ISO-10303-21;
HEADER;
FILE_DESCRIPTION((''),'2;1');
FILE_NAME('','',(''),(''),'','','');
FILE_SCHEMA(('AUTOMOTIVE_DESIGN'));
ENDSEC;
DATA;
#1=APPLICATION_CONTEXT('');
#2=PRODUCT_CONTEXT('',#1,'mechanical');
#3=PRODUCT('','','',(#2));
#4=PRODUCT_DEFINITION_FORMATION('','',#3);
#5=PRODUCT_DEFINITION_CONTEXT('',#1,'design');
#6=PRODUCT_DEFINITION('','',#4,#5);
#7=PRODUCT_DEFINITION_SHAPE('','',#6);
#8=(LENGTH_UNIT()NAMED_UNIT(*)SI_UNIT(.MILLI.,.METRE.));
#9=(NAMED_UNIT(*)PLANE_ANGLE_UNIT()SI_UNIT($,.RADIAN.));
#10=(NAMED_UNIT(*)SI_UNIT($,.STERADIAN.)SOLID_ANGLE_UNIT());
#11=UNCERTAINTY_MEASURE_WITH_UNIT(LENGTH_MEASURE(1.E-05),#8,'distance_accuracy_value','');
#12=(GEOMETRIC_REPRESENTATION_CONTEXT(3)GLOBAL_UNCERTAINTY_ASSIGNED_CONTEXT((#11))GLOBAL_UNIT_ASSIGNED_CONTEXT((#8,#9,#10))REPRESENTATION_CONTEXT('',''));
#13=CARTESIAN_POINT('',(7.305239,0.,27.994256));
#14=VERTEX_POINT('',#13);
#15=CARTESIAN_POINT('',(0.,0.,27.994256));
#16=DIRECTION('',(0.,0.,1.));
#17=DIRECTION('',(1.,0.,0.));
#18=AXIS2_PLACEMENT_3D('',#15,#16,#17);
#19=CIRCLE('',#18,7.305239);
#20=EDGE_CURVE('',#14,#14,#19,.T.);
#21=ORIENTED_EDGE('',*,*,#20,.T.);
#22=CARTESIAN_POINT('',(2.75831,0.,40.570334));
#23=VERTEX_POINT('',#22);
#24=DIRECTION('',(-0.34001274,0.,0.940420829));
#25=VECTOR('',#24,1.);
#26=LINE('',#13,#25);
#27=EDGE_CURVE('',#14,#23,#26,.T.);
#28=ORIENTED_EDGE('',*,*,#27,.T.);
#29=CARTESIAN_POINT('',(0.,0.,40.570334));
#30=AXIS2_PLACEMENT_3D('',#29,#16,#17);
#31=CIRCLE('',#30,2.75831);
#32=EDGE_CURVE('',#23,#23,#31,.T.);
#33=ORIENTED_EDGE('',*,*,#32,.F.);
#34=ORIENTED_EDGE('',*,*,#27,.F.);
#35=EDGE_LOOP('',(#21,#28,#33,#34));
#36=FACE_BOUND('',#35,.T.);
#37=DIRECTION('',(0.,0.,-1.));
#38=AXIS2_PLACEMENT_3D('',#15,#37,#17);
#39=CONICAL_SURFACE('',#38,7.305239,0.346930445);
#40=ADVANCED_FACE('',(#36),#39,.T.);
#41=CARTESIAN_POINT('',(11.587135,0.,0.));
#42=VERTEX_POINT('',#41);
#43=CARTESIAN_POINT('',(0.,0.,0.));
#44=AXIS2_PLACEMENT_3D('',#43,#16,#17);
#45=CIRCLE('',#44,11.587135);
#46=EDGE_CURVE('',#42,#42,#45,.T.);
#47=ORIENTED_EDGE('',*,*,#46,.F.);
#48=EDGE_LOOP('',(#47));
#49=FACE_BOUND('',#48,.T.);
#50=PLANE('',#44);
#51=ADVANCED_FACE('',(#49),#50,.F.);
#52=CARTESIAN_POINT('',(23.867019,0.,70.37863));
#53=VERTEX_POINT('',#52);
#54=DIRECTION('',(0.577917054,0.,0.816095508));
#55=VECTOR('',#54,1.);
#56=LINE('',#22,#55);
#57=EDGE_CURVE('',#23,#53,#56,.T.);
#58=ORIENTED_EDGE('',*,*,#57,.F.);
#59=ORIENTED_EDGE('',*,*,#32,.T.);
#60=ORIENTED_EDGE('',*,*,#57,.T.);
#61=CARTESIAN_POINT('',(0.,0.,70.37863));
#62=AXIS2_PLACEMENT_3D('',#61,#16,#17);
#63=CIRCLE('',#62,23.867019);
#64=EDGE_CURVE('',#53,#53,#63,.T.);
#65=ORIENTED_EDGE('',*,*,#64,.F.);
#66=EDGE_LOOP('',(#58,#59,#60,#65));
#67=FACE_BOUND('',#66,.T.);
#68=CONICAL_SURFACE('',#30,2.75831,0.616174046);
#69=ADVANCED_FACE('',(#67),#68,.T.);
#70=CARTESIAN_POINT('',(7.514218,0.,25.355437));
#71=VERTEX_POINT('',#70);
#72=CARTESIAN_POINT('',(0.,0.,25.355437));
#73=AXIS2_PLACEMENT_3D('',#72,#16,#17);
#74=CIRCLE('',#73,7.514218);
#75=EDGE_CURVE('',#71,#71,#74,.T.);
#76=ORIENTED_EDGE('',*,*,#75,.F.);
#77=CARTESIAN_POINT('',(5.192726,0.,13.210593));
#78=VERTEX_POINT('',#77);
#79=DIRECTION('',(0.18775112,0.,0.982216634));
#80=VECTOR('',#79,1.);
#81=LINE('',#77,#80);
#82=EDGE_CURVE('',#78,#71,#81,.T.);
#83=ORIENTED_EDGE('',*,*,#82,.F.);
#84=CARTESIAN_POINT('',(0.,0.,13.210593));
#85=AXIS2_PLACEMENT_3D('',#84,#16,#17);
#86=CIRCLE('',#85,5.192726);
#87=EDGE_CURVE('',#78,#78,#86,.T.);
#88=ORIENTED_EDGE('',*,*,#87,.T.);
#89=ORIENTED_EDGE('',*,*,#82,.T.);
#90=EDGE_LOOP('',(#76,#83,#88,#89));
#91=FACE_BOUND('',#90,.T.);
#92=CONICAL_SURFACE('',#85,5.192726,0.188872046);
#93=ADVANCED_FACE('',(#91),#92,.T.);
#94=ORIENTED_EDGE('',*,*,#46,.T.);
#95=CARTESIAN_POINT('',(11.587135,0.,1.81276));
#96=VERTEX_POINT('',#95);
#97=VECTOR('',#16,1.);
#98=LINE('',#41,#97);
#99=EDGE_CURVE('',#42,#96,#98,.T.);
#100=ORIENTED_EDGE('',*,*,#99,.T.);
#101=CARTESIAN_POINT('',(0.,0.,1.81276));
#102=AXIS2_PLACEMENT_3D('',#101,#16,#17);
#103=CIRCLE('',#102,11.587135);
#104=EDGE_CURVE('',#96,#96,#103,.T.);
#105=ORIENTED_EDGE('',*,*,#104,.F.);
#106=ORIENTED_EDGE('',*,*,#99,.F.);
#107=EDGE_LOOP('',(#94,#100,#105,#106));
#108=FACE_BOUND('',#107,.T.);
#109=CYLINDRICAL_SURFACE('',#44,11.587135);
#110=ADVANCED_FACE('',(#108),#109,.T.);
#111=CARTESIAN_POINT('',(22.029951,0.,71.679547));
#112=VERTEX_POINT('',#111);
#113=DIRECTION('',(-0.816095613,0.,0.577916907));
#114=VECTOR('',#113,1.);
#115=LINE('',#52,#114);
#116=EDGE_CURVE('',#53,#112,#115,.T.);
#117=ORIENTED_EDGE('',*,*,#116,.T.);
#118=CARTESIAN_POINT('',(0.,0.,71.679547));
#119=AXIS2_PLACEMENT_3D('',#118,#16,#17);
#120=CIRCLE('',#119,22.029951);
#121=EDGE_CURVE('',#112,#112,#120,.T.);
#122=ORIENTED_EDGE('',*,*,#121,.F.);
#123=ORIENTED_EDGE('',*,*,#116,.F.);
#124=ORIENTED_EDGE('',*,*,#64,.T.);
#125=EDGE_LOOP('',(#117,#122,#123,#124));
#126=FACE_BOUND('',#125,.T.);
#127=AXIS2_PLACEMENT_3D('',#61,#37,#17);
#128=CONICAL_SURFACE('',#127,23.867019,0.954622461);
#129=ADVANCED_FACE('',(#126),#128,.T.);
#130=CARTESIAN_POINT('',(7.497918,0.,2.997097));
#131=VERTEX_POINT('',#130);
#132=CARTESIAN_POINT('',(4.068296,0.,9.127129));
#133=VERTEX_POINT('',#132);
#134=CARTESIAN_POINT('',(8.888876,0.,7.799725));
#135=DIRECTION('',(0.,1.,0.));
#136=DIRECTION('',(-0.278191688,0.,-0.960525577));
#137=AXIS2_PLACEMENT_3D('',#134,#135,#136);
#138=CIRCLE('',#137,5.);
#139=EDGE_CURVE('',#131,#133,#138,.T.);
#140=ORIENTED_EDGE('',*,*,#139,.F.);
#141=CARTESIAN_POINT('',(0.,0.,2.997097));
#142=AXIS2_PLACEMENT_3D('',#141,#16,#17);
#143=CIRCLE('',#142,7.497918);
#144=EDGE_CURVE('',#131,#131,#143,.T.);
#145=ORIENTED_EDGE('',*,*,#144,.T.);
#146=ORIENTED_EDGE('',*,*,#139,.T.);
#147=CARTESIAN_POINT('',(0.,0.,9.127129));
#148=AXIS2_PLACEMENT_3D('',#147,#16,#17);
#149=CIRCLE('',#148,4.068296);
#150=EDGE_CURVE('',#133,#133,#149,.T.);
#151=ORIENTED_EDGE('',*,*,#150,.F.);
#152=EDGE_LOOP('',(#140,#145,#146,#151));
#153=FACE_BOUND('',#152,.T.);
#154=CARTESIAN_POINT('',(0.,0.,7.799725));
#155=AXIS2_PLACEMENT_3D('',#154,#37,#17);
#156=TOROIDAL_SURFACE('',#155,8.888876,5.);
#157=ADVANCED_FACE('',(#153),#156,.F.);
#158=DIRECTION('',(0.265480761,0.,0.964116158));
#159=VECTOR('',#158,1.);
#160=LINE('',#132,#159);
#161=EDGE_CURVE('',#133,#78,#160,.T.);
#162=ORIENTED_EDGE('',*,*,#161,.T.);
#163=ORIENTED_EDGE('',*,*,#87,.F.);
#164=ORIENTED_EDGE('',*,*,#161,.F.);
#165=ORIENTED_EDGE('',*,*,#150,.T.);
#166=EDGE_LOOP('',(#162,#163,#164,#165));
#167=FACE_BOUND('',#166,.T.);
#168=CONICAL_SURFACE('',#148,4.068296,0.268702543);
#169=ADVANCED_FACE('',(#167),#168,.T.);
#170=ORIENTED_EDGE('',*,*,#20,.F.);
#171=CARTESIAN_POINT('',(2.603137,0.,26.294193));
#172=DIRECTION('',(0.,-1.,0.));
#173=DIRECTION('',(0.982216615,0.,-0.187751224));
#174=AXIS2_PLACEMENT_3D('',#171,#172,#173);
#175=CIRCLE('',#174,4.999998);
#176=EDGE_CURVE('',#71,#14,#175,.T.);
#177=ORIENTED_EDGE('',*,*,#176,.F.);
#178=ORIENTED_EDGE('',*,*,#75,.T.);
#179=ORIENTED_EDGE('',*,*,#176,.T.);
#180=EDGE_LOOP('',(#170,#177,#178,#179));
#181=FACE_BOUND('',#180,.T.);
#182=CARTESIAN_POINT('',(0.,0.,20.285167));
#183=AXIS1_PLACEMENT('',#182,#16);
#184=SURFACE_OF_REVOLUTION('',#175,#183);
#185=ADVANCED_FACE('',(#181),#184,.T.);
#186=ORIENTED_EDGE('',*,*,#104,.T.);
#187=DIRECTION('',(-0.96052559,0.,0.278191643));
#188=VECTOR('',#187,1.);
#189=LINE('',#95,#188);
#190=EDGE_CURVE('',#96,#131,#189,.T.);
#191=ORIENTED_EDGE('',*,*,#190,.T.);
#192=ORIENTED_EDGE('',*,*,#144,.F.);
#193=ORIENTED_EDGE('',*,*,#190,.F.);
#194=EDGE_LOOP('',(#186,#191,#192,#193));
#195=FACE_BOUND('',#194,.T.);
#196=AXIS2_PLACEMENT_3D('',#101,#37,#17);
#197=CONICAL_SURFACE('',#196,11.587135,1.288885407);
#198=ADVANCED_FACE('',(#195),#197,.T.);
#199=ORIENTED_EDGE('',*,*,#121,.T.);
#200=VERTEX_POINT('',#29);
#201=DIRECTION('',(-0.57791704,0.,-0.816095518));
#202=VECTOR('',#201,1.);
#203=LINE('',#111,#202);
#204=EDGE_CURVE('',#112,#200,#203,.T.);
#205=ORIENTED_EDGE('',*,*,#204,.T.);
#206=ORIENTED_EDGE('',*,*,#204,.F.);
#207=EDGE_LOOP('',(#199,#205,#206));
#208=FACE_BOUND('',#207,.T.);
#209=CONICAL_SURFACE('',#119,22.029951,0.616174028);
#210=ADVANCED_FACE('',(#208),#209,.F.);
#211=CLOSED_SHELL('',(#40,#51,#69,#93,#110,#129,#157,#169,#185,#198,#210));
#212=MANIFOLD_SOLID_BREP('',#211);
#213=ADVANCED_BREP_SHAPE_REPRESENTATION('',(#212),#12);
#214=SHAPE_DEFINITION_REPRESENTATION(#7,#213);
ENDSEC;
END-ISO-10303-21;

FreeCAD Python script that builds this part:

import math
import FreeCAD as App
import Part
import Sketcher
from FreeCAD import Vector

doc = App.newDocument("Part")
body = doc.addObject("PartDesign::Body", "Body")

sketch1 = body.newObject("Sketcher::SketchObject", "Sketch")
sketch1.AttachmentSupport = (doc.getObject("XZ_Plane"), [""])
sketch1.MapMode = "FlatFace"
sketch1.addGeometry([
    Part.LineSegment(Vector(0, 40.570334, 0), Vector(0, 0, 0)),
    Part.LineSegment(Vector(0, 0, 0), Vector(11.587135, 0, 0)),
    Part.LineSegment(Vector(11.587135, 0, 0), Vector(11.587135, 1.81276, 0)),
    Part.LineSegment(Vector(11.587135, 1.81276, 0), Vector(7.497918, 2.997097, 0)),
    Part.ArcOfCircle(Part.Circle(Vector(8.888876, 7.799725, 0), Vector(0, 0, 1), 5), math.radians(164.604471), math.radians(253.847691)),
    Part.LineSegment(Vector(4.068296, 9.127129, 0), Vector(5.192726, 13.210593, 0)),
    Part.LineSegment(Vector(5.192726, 13.210593, 0), Vector(7.514218, 25.355437, 0)),
    Part.ArcOfCircle(Part.Circle(Vector(2.603137, 26.294193, 0), Vector(0, 0, 1), 4.999998), math.radians(-10.821577), math.radians(19.877656)),
    Part.LineSegment(Vector(7.305239, 27.994256, 0), Vector(2.75831, 40.570334, 0)),
    Part.LineSegment(Vector(2.75831, 40.570334, 0), Vector(23.867019, 70.37863, 0)),
    Part.LineSegment(Vector(23.867019, 70.37863, 0), Vector(22.029951, 71.679547, 0)),
    Part.LineSegment(Vector(22.029951, 71.679547, 0), Vector(0, 40.570334, 0)),
], False)
sketch1.addConstraint([
    Sketcher.Constraint("Coincident", 0, 2, 1, 1),
    Sketcher.Constraint("Coincident", 1, 2, 2, 1),
    Sketcher.Constraint("Coincident", 2, 2, 3, 1),
    Sketcher.Constraint("Tangent", 3, 2, 4, 2),
    Sketcher.Constraint("Tangent", 4, 1, 5, 1),
    Sketcher.Constraint("Coincident", 5, 2, 6, 1),
    Sketcher.Constraint("Tangent", 6, 2, 7, 1),
    Sketcher.Constraint("Tangent", 7, 2, 8, 1),
    Sketcher.Constraint("Coincident", 8, 2, 9, 1),
    Sketcher.Constraint("Coincident", 9, 2, 10, 1),
    Sketcher.Constraint("Coincident", 10, 2, 11, 1),
    Sketcher.Constraint("Coincident", 11, 2, 0, 1),
    Sketcher.Constraint("Vertical", 0),
    Sketcher.Constraint("Horizontal", 1),
    Sketcher.Constraint("Vertical", 2),
    Sketcher.Constraint("Coincident", 0, 2, -1, 1),
    Sketcher.Constraint("Perpendicular", 9, 10),
    Sketcher.Constraint("Perpendicular", 10, 11),
    Sketcher.Constraint("Horizontal", 8, 2, 11, 2),
    Sketcher.Constraint("Radius", 4, 5.0),
    Sketcher.Constraint("Radius", 7, 4.999998),
    Sketcher.Constraint("Distance", 9, 36.525499),
    Sketcher.Constraint("DistanceY", 2, 1, 2, 2, 1.81276),
    Sketcher.Constraint("DistanceY", 5, 2, 7, 3, 13.0836),
    Sketcher.Constraint("DistanceX", 3, 2, 6, 2, 0.0163),
    Sketcher.Constraint("DistanceX", 7, 3, 7, 2, 4.702102),
    Sketcher.Constraint("DistanceX", 6, 2, 9, 2, 16.352801),
    Sketcher.Constraint("Distance", 3, 4.25727),
    Sketcher.Constraint("Distance", 5, 4.235448),
    Sketcher.Constraint("Distance", 6, 12.364731),
    Sketcher.Constraint("Distance", 8, 13.372819),
    Sketcher.Constraint("DistanceX", 1, 1, 1, 2, 11.587135),
    Sketcher.Constraint("DistanceY", 0, 2, 0, 1, 40.570334),
])
revolution = body.newObject("PartDesign::Revolution", "Revolution")
revolution.Profile = sketch1
revolution.ReferenceAxis = (sketch1, ["V_Axis"])
revolution.Angle = 360

doc.recompute()
